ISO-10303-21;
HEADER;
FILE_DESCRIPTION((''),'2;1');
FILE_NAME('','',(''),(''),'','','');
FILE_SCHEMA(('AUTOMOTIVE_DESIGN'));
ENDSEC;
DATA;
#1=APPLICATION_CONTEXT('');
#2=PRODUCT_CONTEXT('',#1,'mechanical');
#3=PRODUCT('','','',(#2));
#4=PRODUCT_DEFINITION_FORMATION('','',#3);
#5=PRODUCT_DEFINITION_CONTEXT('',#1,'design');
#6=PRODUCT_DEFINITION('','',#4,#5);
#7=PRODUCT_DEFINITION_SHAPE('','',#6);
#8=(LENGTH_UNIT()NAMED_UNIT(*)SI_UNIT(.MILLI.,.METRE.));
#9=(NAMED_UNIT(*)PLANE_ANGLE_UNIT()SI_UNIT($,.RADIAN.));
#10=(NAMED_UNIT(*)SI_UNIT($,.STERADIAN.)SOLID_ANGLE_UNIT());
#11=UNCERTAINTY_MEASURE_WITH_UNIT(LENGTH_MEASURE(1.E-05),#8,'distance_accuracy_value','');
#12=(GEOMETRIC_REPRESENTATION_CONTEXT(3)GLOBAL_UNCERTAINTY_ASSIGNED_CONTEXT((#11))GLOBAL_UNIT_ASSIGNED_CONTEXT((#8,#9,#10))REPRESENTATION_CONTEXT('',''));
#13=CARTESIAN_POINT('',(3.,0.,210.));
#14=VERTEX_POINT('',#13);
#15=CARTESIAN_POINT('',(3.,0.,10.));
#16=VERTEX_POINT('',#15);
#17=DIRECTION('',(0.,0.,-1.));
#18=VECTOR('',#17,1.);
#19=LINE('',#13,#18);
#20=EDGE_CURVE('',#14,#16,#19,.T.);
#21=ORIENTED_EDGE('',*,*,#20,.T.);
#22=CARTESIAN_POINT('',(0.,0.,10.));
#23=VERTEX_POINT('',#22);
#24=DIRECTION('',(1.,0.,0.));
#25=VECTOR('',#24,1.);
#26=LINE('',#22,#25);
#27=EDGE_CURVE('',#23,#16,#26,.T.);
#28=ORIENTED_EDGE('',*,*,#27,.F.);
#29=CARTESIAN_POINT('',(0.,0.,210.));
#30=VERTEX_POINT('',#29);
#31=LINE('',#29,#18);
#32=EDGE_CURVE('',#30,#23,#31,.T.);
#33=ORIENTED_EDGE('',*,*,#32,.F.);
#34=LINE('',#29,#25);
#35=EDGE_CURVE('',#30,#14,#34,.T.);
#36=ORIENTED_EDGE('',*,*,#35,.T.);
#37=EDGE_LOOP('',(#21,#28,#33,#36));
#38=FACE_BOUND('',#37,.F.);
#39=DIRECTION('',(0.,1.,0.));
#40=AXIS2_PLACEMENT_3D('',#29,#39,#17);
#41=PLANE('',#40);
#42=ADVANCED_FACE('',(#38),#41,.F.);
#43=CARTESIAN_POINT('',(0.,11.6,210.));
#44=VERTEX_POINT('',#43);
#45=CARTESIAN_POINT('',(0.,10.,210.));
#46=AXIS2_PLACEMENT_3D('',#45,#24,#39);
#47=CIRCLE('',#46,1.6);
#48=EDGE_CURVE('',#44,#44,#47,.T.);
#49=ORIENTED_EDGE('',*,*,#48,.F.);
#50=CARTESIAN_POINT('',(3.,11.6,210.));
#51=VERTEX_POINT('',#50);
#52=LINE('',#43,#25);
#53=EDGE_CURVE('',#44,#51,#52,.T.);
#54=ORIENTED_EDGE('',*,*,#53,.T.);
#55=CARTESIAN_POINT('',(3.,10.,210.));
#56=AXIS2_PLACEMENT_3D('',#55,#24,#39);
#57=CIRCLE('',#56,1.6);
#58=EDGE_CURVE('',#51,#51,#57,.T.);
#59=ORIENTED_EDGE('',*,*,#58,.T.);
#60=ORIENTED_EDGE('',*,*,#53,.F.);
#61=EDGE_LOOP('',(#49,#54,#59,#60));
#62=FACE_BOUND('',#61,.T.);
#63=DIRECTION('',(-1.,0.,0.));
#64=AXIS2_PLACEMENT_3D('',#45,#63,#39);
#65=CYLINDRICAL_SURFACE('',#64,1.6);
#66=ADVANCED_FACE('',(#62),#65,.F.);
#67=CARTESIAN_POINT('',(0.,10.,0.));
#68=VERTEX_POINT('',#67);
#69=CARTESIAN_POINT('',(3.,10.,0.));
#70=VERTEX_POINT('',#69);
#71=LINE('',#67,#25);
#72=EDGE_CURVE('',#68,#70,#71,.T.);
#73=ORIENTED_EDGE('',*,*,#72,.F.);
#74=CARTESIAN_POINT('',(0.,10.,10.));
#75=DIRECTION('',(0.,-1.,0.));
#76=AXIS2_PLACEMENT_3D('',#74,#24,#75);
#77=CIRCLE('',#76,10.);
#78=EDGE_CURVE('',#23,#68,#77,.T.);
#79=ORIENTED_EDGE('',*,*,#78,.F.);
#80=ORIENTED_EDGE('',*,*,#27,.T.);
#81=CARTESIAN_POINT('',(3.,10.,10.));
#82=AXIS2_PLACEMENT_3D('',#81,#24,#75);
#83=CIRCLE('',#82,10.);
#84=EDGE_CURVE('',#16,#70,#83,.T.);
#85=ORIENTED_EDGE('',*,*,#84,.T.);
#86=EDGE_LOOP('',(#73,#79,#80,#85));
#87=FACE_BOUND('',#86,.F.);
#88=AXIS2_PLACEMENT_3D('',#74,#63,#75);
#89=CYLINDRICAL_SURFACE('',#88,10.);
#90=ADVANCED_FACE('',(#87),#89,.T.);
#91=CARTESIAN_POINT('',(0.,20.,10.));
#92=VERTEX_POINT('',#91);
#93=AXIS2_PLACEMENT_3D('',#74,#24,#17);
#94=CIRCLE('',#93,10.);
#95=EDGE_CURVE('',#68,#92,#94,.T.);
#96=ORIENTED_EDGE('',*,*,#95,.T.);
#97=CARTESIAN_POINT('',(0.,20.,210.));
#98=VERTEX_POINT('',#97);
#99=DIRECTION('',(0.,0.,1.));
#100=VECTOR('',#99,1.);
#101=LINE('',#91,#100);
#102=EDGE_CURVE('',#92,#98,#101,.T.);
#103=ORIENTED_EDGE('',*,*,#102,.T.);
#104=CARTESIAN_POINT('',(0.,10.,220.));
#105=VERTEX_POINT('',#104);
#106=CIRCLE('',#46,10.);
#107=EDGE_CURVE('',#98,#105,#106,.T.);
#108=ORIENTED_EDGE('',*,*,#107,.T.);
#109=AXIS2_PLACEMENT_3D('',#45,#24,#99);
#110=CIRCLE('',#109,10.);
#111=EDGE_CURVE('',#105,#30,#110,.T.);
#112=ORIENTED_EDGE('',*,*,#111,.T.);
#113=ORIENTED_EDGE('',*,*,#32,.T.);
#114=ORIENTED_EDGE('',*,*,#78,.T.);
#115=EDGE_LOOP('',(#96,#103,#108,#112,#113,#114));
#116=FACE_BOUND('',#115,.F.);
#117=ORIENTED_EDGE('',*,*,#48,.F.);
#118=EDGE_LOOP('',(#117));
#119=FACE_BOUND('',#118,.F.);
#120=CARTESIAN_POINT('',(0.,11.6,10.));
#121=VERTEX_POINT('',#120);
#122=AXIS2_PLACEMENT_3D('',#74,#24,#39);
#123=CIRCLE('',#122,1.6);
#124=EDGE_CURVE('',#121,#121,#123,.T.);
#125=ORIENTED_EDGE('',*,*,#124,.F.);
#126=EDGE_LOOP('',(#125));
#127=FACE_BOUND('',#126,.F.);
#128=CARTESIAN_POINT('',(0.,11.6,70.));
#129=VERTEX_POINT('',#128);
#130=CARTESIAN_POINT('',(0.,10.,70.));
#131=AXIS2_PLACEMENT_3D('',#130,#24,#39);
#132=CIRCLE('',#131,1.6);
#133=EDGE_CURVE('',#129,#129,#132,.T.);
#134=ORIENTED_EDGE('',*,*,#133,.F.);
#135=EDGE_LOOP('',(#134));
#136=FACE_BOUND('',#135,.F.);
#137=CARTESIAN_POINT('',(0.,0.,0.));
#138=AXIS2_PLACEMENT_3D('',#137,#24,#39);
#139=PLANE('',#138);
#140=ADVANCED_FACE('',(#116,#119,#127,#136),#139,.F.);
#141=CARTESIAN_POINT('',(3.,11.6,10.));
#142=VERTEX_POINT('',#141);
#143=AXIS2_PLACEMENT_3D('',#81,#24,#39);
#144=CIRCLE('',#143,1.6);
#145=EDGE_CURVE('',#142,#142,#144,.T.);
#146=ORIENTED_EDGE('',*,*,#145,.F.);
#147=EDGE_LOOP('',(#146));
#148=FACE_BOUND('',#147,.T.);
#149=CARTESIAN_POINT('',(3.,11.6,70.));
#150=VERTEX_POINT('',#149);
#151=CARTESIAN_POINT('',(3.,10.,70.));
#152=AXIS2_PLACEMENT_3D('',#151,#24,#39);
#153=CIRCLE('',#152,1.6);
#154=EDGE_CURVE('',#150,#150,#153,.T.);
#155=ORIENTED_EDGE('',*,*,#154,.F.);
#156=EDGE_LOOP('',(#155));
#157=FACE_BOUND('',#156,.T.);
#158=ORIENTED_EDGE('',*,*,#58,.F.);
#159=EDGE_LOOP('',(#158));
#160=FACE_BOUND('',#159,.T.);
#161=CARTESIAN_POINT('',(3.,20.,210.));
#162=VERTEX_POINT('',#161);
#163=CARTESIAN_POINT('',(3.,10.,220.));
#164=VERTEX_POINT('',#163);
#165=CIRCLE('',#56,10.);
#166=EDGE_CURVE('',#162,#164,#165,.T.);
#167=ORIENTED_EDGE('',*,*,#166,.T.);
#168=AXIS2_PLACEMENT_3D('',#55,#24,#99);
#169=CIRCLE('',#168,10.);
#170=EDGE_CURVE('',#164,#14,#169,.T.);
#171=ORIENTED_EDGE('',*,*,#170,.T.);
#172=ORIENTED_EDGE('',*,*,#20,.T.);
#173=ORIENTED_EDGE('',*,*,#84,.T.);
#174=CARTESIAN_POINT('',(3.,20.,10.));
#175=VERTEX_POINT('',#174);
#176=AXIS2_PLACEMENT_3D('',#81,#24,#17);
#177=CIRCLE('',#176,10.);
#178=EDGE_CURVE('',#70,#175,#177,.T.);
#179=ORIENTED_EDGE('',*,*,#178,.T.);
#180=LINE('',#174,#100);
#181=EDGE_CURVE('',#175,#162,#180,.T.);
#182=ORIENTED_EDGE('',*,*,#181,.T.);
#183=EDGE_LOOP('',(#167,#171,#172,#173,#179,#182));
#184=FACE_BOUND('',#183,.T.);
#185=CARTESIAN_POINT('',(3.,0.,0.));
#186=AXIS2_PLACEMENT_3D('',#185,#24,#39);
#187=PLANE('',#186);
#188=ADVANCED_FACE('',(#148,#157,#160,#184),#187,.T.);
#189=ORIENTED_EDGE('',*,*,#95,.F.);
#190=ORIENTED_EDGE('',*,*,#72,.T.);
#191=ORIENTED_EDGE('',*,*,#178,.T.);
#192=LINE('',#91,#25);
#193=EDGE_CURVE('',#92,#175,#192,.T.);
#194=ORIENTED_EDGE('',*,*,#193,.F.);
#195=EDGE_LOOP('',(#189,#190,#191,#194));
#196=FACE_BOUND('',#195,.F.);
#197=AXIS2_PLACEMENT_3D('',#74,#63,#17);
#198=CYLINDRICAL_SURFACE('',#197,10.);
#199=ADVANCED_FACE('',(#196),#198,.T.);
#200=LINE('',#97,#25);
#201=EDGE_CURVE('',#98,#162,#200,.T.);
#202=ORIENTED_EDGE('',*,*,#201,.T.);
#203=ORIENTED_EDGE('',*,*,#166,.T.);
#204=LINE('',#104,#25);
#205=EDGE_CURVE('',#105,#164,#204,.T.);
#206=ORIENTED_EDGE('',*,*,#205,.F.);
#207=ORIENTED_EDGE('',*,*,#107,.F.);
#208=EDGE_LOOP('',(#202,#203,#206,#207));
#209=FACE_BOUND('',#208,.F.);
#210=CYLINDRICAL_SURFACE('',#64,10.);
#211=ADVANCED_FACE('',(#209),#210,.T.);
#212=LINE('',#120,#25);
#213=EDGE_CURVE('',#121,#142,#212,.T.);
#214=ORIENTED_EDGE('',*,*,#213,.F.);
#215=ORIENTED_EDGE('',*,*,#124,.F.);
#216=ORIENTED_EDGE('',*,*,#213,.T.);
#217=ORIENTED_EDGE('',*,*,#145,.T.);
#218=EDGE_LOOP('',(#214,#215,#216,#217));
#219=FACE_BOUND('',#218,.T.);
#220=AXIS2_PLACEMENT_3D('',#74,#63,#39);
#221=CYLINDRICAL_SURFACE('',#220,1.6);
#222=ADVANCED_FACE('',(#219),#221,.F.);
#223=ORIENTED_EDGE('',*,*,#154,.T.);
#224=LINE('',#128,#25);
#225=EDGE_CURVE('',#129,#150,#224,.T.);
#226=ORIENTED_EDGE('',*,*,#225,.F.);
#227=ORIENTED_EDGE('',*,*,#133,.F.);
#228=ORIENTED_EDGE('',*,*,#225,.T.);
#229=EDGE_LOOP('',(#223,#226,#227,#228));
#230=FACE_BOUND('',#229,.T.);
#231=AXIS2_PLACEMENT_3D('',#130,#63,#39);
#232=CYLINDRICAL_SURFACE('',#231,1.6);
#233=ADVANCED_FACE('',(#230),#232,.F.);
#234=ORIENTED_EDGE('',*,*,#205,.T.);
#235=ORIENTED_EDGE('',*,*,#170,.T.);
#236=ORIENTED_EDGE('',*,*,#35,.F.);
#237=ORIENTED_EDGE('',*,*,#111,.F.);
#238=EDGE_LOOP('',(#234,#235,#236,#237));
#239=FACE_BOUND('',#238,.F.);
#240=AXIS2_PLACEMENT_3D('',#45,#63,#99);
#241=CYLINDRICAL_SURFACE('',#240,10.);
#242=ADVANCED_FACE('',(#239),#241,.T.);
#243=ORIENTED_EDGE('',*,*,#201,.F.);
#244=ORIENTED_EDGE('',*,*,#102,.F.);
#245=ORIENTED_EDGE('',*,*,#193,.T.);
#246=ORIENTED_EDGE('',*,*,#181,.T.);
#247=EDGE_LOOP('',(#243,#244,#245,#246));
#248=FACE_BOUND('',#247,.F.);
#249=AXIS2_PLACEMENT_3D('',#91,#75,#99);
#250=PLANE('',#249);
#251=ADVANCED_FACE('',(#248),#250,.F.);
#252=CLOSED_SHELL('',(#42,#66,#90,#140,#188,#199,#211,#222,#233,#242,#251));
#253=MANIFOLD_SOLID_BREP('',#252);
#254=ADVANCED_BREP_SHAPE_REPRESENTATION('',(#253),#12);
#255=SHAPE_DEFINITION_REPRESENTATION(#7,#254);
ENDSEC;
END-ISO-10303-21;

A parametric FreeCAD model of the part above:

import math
import FreeCAD as App
import Part
import Sketcher

V = App.Vector

doc = App.newDocument("Part")
body = doc.addObject("PartDesign::Body", "Body")

# Sketch on YZ plane
sketch1 = body.newObject("Sketcher::SketchObject", "Sketch")
sketch1.AttachmentSupport = (doc.getObject("YZ_Plane"), [""])
sketch1.MapMode = "FlatFace"
sketch1.addGeometry(Part.ArcOfCircle(Part.Circle(V(10, 10, 0), V(0, 0, 1), 10), math.radians(180), math.radians(360)), False)
sketch1.addGeometry(Part.LineSegment(V(20, 10, 0), V(20, 210, 0)), False)
sketch1.addGeometry(Part.ArcOfCircle(Part.Circle(V(10, 210, 0), V(0, 0, 1), 10), math.radians(0), math.radians(180)), False)
sketch1.addGeometry(Part.LineSegment(V(0, 210, 0), V(0, 10, 0)), False)
sketch1.addGeometry(Part.Circle(V(10, 10, 0), V(0, 0, 1), 1.6), False)
sketch1.addGeometry(Part.Circle(V(10, 70, 0), V(0, 0, 1), 1.6), False)
sketch1.addGeometry(Part.Circle(V(10, 210, 0), V(0, 0, 1), 1.6), False)
sketch1.addConstraint(Sketcher.Constraint("Tangent", 0, 2, 1, 1))
sketch1.addConstraint(Sketcher.Constraint("Tangent", 1, 2, 2, 1))
sketch1.addConstraint(Sketcher.Constraint("Tangent", 2, 2, 3, 1))
sketch1.addConstraint(Sketcher.Constraint("Tangent", 3, 2, 0, 1))
sketch1.addConstraint(Sketcher.Constraint("Vertical", 1))
sketch1.addConstraint(Sketcher.Constraint("Vertical", 3))
sketch1.addConstraint(Sketcher.Constraint("Coincident", 4, 3, 0, 3))
sketch1.addConstraint(Sketcher.Constraint("Coincident", 6, 3, 2, 3))
sketch1.addConstraint(Sketcher.Constraint("Equal", 4, 5))
sketch1.addConstraint(Sketcher.Constraint("Equal", 5, 6))
sketch1.addConstraint(Sketcher.Constraint("PointOnObject", 2, 2, -2))
sketch1.addConstraint(Sketcher.Constraint("Vertical", 4, 3, 5, 3))
sketch1.addConstraint(Sketcher.Constraint("Radius", 0, 10.0))
sketch1.addConstraint(Sketcher.Constraint("Diameter", 4, 3.2))
sketch1.addConstraint(Sketcher.Constraint("DistanceY", 1, 1, 1, 2, 200.0))
sketch1.addConstraint(Sketcher.Constraint("DistanceY", -1, 1, 0, 3, 10.0))
sketch1.addConstraint(Sketcher.Constraint("DistanceY", 0, 3, 5, 3, 60.0))
pad1 = body.newObject("PartDesign::Pad", "Pad")
pad1.Profile = sketch1
pad1.Length = 3

doc.recompute()
